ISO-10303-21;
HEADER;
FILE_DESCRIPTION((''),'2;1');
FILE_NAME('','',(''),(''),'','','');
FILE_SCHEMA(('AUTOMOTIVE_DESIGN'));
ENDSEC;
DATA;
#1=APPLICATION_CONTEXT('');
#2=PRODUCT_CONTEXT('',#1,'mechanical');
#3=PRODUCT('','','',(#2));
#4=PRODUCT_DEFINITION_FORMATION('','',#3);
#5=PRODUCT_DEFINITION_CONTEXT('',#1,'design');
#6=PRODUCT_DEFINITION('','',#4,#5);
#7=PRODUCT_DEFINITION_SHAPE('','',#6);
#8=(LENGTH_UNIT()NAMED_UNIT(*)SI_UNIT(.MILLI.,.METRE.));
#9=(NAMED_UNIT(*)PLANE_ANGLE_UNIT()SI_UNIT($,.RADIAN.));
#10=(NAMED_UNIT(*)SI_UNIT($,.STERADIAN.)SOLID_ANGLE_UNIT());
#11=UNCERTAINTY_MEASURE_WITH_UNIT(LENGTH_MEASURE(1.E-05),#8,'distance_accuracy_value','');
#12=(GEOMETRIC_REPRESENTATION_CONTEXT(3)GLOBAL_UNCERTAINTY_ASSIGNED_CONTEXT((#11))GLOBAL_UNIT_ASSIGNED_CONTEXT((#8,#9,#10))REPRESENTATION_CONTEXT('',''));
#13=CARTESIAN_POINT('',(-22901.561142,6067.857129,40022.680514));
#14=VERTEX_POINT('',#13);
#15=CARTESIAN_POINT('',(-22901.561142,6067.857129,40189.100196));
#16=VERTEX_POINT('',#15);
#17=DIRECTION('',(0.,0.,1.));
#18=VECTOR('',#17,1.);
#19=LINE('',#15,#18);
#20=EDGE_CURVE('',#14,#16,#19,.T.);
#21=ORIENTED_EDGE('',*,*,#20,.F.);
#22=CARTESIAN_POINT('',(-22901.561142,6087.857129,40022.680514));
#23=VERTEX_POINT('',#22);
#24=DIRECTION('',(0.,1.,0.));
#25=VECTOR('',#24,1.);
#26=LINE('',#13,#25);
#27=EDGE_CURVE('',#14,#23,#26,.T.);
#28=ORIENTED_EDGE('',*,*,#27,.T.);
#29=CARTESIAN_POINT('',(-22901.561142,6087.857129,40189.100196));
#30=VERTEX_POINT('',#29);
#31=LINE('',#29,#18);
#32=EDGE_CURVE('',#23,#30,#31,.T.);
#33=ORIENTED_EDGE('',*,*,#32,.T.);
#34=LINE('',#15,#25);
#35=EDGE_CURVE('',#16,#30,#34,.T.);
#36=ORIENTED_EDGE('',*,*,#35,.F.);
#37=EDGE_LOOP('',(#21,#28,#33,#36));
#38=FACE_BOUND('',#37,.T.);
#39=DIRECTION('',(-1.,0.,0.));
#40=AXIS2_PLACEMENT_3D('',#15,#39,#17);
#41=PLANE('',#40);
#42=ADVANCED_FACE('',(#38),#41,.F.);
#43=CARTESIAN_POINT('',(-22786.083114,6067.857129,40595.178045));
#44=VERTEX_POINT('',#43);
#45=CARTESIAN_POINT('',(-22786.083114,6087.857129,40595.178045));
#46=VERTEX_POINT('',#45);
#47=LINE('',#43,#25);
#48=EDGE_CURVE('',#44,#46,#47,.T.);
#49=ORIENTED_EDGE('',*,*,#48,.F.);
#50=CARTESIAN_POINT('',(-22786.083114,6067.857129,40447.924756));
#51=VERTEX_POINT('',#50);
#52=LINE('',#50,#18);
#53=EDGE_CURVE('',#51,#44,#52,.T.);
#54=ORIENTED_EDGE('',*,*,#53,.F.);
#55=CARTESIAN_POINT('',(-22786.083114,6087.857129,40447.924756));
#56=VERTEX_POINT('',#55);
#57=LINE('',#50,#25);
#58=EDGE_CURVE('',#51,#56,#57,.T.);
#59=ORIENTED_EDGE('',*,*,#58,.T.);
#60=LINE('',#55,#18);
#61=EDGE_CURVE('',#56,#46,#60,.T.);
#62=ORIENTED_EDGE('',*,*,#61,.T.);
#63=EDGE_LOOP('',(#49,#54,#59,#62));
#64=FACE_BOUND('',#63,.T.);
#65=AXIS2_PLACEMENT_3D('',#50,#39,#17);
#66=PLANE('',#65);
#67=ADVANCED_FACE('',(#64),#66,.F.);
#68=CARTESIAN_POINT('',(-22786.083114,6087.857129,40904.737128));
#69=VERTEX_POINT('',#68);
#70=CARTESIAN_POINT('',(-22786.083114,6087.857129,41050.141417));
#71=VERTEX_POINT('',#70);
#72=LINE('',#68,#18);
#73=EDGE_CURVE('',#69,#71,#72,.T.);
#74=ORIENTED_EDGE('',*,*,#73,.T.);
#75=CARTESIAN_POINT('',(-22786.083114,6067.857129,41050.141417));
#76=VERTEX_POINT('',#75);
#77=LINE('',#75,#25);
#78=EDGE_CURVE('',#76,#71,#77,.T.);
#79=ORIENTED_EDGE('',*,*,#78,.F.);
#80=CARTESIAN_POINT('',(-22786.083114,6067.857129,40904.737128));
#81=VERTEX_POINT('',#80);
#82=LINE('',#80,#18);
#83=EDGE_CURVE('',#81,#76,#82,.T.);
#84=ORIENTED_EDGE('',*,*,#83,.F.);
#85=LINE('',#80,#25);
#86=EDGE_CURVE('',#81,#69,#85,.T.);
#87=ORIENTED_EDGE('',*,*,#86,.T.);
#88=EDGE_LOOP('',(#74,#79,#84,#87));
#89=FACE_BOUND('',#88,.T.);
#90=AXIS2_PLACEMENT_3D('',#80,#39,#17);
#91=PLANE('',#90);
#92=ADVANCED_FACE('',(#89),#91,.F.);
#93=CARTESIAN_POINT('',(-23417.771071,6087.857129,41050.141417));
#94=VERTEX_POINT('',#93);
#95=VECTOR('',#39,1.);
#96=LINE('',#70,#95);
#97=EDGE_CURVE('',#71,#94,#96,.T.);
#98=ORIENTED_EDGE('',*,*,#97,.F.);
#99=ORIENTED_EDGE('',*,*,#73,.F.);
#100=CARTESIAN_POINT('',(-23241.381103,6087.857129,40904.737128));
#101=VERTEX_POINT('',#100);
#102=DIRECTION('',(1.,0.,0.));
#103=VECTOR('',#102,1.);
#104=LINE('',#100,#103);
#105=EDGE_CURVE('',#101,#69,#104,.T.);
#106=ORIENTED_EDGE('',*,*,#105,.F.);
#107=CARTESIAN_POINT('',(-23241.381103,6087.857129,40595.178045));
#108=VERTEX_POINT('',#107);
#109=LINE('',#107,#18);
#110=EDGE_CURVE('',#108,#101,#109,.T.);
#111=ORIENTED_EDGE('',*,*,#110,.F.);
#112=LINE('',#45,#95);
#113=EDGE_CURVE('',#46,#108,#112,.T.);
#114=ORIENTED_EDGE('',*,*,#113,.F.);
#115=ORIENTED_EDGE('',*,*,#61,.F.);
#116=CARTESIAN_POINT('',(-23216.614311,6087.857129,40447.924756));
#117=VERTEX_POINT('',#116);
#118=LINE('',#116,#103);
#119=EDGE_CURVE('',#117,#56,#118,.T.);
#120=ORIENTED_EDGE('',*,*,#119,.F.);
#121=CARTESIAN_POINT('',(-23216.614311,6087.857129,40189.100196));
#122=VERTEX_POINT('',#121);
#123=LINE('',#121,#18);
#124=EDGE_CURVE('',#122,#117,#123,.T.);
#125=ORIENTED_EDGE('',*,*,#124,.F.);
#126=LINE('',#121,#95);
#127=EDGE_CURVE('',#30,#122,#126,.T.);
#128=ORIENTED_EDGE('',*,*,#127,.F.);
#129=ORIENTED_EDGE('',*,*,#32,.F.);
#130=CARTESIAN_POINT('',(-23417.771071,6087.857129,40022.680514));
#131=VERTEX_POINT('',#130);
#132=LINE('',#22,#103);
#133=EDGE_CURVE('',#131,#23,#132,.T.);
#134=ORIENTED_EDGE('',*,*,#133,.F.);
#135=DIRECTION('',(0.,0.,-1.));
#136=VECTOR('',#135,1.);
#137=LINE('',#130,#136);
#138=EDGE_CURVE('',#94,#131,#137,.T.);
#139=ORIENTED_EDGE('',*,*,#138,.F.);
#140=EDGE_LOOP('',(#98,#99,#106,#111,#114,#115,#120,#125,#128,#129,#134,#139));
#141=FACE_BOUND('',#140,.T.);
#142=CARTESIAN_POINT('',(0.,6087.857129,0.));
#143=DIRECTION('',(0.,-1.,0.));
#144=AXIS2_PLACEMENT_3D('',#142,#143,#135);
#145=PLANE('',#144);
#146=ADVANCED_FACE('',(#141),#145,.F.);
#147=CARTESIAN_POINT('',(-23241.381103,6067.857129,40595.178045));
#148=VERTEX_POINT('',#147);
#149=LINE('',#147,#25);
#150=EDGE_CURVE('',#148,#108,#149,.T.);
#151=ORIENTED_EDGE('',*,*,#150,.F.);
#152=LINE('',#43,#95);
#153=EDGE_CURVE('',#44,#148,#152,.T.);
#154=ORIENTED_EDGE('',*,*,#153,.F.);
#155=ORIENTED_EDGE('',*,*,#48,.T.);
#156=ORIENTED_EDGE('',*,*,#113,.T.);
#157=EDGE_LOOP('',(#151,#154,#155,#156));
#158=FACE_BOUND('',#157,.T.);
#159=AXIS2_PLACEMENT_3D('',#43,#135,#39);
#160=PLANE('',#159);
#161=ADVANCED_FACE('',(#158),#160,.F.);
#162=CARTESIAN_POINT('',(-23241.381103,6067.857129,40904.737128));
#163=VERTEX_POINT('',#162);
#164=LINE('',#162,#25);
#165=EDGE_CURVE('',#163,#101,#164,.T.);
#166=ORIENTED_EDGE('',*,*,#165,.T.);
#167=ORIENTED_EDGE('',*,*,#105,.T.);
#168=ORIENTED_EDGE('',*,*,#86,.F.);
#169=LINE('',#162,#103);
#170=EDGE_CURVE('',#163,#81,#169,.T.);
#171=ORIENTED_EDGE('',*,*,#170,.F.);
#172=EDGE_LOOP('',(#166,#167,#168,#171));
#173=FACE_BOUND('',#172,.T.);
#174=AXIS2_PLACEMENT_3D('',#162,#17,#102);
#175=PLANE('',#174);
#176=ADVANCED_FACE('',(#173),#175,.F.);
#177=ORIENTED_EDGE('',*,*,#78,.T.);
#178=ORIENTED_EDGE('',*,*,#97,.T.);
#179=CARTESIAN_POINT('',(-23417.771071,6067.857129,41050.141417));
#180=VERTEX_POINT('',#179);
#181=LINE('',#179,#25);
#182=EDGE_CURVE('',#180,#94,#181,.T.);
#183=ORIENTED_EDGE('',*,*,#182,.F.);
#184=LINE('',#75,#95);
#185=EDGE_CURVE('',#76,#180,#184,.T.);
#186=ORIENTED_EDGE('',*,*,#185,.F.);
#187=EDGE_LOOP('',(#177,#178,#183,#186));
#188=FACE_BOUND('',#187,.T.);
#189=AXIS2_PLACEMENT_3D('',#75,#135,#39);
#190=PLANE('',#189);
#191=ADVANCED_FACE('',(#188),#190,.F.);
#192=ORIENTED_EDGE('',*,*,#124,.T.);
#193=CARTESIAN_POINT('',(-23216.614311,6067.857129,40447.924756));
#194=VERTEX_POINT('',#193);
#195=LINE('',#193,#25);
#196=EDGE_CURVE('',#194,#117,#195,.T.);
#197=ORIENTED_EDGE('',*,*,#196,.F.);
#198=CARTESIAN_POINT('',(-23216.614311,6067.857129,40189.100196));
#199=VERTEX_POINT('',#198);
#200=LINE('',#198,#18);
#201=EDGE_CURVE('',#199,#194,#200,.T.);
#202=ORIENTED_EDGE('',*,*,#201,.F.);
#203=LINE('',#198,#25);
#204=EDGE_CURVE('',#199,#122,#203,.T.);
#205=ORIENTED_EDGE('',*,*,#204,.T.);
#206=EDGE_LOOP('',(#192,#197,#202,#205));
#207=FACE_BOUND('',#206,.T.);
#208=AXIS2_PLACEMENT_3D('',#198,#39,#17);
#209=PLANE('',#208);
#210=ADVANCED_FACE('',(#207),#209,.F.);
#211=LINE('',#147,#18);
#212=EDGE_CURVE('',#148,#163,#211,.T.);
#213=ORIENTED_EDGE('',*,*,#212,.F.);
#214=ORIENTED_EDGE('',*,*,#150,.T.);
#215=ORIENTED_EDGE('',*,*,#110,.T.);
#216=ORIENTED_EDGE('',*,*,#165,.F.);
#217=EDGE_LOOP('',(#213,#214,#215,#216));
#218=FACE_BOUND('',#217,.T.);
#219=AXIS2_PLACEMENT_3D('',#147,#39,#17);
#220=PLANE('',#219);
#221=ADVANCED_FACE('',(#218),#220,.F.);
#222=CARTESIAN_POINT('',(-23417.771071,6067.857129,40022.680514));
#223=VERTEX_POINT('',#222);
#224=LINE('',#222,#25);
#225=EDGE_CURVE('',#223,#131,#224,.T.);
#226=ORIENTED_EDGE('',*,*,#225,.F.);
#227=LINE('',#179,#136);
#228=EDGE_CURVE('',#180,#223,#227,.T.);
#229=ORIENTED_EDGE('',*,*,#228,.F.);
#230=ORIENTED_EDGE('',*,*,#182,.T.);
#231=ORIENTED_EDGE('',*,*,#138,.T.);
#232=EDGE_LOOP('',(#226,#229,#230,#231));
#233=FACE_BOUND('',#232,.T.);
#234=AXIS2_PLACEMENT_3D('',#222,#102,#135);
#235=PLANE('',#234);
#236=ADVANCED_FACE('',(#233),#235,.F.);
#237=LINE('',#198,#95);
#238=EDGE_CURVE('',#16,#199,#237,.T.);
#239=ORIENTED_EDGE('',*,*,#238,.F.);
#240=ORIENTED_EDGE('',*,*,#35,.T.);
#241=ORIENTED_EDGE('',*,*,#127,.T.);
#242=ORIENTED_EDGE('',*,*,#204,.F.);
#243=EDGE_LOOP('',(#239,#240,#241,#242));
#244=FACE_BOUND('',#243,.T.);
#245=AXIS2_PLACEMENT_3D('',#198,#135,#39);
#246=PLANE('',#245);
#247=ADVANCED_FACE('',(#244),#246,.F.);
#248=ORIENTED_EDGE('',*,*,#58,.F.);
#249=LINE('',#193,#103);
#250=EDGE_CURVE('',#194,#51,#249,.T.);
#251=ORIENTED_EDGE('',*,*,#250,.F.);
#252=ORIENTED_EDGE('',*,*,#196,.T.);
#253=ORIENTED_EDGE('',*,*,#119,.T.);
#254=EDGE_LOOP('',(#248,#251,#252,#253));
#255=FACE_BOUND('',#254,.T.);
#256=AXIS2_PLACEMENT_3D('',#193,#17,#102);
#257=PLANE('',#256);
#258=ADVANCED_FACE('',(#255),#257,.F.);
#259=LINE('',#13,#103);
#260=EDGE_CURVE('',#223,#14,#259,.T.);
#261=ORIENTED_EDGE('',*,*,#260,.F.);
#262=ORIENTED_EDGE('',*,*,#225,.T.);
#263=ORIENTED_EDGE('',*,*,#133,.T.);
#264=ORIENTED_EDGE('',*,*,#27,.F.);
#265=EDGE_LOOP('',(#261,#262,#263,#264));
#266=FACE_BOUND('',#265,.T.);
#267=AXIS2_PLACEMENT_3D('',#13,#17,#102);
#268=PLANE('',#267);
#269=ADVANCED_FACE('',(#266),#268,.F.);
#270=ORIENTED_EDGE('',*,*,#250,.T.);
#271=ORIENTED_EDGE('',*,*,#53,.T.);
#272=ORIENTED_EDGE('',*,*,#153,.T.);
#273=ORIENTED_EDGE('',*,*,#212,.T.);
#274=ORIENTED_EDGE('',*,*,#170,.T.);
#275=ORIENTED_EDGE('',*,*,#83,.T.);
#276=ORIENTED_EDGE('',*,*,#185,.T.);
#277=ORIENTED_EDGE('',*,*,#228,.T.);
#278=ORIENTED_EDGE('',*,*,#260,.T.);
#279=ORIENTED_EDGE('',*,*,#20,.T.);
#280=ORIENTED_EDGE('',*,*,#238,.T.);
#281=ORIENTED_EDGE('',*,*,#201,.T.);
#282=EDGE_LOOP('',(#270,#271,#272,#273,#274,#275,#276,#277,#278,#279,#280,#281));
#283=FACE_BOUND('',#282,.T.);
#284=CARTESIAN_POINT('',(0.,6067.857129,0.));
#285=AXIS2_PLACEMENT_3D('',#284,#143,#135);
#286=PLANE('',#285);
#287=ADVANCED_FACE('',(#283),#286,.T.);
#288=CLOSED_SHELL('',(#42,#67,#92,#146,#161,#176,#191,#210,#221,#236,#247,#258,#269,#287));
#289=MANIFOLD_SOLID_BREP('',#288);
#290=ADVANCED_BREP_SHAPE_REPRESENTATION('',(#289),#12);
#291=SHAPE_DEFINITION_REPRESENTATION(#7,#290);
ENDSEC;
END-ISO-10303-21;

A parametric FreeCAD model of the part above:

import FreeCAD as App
import Part
import Sketcher

V = App.Vector
Q = App.Units.Quantity


def add_polygon(sketch, points):
    """Adds a closed chain of lines whose ends are joined by coincident constraints."""
    first, n = sketch.GeometryCount, len(points)
    for a, b in zip(points, points[1:] + points[:1]):
        sketch.addGeometry(Part.LineSegment(App.Vector(*a, 0), App.Vector(*b, 0)), False)
    for i in range(n):
        sketch.addConstraint(Sketcher.Constraint("Coincident", first + i, 2, first + (i + 1) % n, 1))

doc = App.newDocument("Part")
params = doc.addObject("Spreadsheet::Sheet", "Params")
for row, (alias, value) in enumerate([
    ("pad1_length", "20 mm"),
], start=1):
    params.set(f"A{row}", alias)
    params.set(f"B{row}", "=" + value)
    params.setAlias(f"B{row}", alias)

body = doc.addObject("PartDesign::Body", "Body")

# Sketch on XZ plane
sketch1 = body.newObject("Sketcher::SketchObject", "Sketch")
sketch1.AttachmentSupport = (doc.getObject("XZ_Plane"), [""])
sketch1.MapMode = "FlatFace"
sketch1.AttachmentOffset = App.Placement(V(0, 0, -6087.857129), App.Rotation())
add_polygon(sketch1, [(-23418, 41050), (-23418, 40023), (-22902, 40023), (-22902, 40189), (-23217, 40189), (-23217, 40448), (-22786, 40448), (-22786, 40595), (-23241, 40595), (-23241, 40905), (-22786, 40905), (-22786, 41050)])  # lines 0-11
sketch1.addConstraint(Sketcher.Constraint("Vertical", 0))
sketch1.addConstraint(Sketcher.Constraint("Horizontal", 1))
sketch1.addConstraint(Sketcher.Constraint("Vertical", 2))
sketch1.addConstraint(Sketcher.Constraint("Horizontal", 3))
sketch1.addConstraint(Sketcher.Constraint("Vertical", 4))
sketch1.addConstraint(Sketcher.Constraint("Horizontal", 5))
sketch1.addConstraint(Sketcher.Constraint("Vertical", 6))
sketch1.addConstraint(Sketcher.Constraint("Horizontal", 7))
sketch1.addConstraint(Sketcher.Constraint("Vertical", 8))
sketch1.addConstraint(Sketcher.Constraint("Horizontal", 9))
sketch1.addConstraint(Sketcher.Constraint("Vertical", 10))
sketch1.addConstraint(Sketcher.Constraint("Horizontal", 11))
sketch1.addConstraint(Sketcher.Constraint("Vertical", 6, 2, 9, 2))
sketch1.addConstraint(Sketcher.Constraint("DistanceX", 1, 1, 1, 2, Q("516.20993 mm")))
sketch1.addConstraint(Sketcher.Constraint("DistanceX", 3, 2, 3, 1, Q("315.053169 mm")))
sketch1.addConstraint(Sketcher.Constraint("DistanceX", 7, 2, 7, 1, Q("455.297989 mm")))
sketch1.addConstraint(Sketcher.Constraint("DistanceY", 2, 1, 2, 2, Q("166.419682 mm")))
sketch1.addConstraint(Sketcher.Constraint("DistanceY", 4, 1, 4, 2, Q("258.82456 mm")))
sketch1.addConstraint(Sketcher.Constraint("DistanceY", 6, 1, 6, 2, Q("147.253289 mm")))
sketch1.addConstraint(Sketcher.Constraint("DistanceY", 10, 1, 10, 2, Q("145.404289 mm")))
sketch1.addConstraint(Sketcher.Constraint("DistanceX", 5, 1, 5, 2, Q("430.531197 mm")))
sketch1.addConstraint(Sketcher.Constraint("DistanceY", 0, 2, 0, 1, Q("1027.460903 mm")))
sketch1.addConstraint(Sketcher.Constraint("DistanceX", 0, 2, -1, 1, Q("23417.771071 mm")))
sketch1.addConstraint(Sketcher.Constraint("DistanceY", -1, 1, 8, 2, Q("40904.737128 mm")))
pad1 = body.newObject("PartDesign::Pad", "Pad")
pad1.Profile = sketch1
pad1.setExpression("Length", "Params.pad1_length")

doc.recompute()
